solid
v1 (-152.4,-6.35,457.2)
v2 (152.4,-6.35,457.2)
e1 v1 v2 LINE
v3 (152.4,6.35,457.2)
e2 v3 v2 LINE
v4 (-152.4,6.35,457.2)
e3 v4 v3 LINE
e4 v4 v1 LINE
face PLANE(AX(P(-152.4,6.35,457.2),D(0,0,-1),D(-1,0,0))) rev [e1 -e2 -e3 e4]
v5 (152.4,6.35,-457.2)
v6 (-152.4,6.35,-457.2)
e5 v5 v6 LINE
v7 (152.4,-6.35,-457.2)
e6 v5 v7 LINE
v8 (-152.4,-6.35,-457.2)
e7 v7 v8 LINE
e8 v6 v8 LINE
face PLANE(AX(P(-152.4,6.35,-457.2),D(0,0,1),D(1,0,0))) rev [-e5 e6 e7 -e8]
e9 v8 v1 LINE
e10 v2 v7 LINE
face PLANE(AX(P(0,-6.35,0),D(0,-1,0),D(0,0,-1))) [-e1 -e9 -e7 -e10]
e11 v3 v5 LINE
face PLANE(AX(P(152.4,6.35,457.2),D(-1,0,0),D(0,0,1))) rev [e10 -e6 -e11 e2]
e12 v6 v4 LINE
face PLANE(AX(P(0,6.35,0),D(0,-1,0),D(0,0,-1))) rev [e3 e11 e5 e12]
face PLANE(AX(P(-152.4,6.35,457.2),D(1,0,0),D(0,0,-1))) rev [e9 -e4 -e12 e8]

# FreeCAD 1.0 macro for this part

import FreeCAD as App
import Part
import Sketcher

V = App.Vector
Q = App.Units.Quantity


def add_polygon(sketch, points):
    """Adds a closed chain of lines whose ends are joined by coincident constraints."""
    first, n = sketch.GeometryCount, len(points)
    for a, b in zip(points, points[1:] + points[:1]):
        sketch.addGeometry(Part.LineSegment(App.Vector(*a, 0), App.Vector(*b, 0)), False)
    for i in range(n):
        sketch.addConstraint(Sketcher.Constraint("Coincident", first + i, 2, first + (i + 1) % n, 1))

doc = App.newDocument("Part")
body = doc.addObject("PartDesign::Body", "Body")

sketch1 = body.newObject("Sketcher::SketchObject", "Sketch")
sketch1.AttachmentSupport = (doc.getObject("XZ_Plane"), [""])
sketch1.MapMode = "FlatFace"
add_polygon(sketch1, [(-152.4, -457.2), (-152.4, 457.2), (152.4, 457.2), (152.4, -457.2)])
sketch1.addConstraint([
    Sketcher.Constraint("Vertical", 0),
    Sketcher.Constraint("Horizontal", 1),
    Sketcher.Constraint("Vertical", 2),
    Sketcher.Constraint("Horizontal", 3),
    Sketcher.Constraint("Symmetric", 0, 2, 2, 2, -1, 1),
    Sketcher.Constraint("DistanceX", 1, 1, 1, 2, Q("12 in")),
    Sketcher.Constraint("DistanceY", 0, 1, 0, 2, Q("36 in")),
])
pad1 = body.newObject("PartDesign::Pad", "Pad")
pad1.Profile = sketch1
pad1.Length = Q("0.5 in")
pad1.Midplane = True

doc.recompute()
